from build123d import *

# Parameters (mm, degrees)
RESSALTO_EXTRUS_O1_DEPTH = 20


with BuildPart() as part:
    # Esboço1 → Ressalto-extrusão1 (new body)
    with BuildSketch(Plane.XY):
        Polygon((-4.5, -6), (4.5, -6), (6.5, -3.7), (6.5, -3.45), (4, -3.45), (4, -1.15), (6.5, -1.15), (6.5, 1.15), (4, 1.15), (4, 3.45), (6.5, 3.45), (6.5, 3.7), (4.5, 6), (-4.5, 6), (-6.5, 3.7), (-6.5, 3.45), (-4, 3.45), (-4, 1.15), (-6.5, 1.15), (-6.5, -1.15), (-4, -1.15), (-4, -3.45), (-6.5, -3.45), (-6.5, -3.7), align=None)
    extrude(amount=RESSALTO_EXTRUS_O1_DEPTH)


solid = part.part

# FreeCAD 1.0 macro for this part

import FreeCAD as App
import Part
import Sketcher

V = App.Vector


def add_polygon(sketch, points):
    """Adds a closed chain of lines whose ends are joined by coincident constraints."""
    first, n = sketch.GeometryCount, len(points)
    for a, b in zip(points, points[1:] + points[:1]):
        sketch.addGeometry(Part.LineSegment(App.Vector(*a, 0), App.Vector(*b, 0)), False)
    for i in range(n):
        sketch.addConstraint(Sketcher.Constraint("Coincident", first + i, 2, first + (i + 1) % n, 1))

doc = App.newDocument("Part")
params = doc.addObject("Spreadsheet::Sheet", "Params")
for row, (alias, value) in enumerate([
    ("sketch1_width", "9 mm"),
    ("sketch1_width2", "2.5 mm"),
    ("sketch1_height", "2.3 mm"),
    ("sketch1_height2", "0.25 mm"),
    ("pad1_length", "20 mm"),
], start=1):
    params.set(f"A{row}", alias)
    params.set(f"B{row}", "=" + value)
    params.setAlias(f"B{row}", alias)

body = doc.addObject("PartDesign::Body", "Body")

sketch1 = doc.addObject("Sketcher::SketchObject", "Sketch")
body.addObject(sketch1)
sketch1.AttachmentSupport = (doc.XY_Plane, [""])
sketch1.MapMode = "FlatFace"
add_polygon(sketch1, [(-4.5, -6), (4.5, -6), (6.5, -3.7), (6.5, -3.45), (4, -3.45), (4, -1.15), (6.5, -1.15), (6.5, 1.15), (4, 1.15), (4, 3.45), (6.5, 3.45), (6.5, 3.7), (4.5, 6), (-4.5, 6), (-6.5, 3.7), (-6.5, 3.45), (-4, 3.45), (-4, 1.15), (-6.5, 1.15), (-6.5, -1.15), (-4, -1.15), (-4, -3.45), (-6.5, -3.45), (-6.5, -3.7)])
sketch1.addConstraint([
    Sketcher.Constraint("Horizontal", 0),
    Sketcher.Constraint("Vertical", 2),
    Sketcher.Constraint("Horizontal", 3),
    Sketcher.Constraint("Vertical", 4),
    Sketcher.Constraint("Horizontal", 5),
    Sketcher.Constraint("Vertical", 6),
    Sketcher.Constraint("Horizontal", 7),
    Sketcher.Constraint("Vertical", 8),
    Sketcher.Constraint("Horizontal", 9),
    Sketcher.Constraint("Vertical", 10),
    Sketcher.Constraint("Horizontal", 12),
    Sketcher.Constraint("Vertical", 14),
    Sketcher.Constraint("Horizontal", 15),
    Sketcher.Constraint("Vertical", 16),
    Sketcher.Constraint("Horizontal", 17),
    Sketcher.Constraint("Vertical", 18),
    Sketcher.Constraint("Horizontal", 19),
    Sketcher.Constraint("Vertical", 20),
    Sketcher.Constraint("Horizontal", 21),
    Sketcher.Constraint("Vertical", 22),
    Sketcher.Constraint("Symmetric", 0, 2, 12, 2, -1, 1),
    Sketcher.Constraint("Symmetric", 1, 2, 13, 2, -1, 1),
    Sketcher.Constraint("Symmetric", 3, 2, 15, 2, -1, 1),
    Sketcher.Constraint("Symmetric", 5, 2, 17, 2, -1, 1),
    Sketcher.Constraint("Symmetric", 7, 2, 19, 2, -1, 1),
    Sketcher.Constraint("Symmetric", 9, 2, 21, 2, -1, 1),
    Sketcher.Constraint("Symmetric", 10, 2, 13, 2, -2),
    Sketcher.Constraint("Symmetric", 8, 2, 15, 2, -2),
    Sketcher.Constraint("Parallel", 11, 23),
    Sketcher.Constraint("Horizontal", 7, 2, 16, 2),
    Sketcher.Constraint("Horizontal", 1, 2, 22, 2),
    Sketcher.Constraint("Vertical", 2, 2, 5, 2),
    Sketcher.Constraint("Vertical", 0, 2, 11, 2),
    Sketcher.Constraint("Equal", 4, 6),
    Sketcher.Constraint("DistanceX", 0, 1, 0, 2, 9.0),
    Sketcher.Constraint("DistanceX", 3, 2, 3, 1, 2.5),
    Sketcher.Constraint("DistanceY", 4, 1, 4, 2, 2.3),
    Sketcher.Constraint("DistanceY", 0, 2, -1, 1, 6.0),
    Sketcher.Constraint("DistanceX", -1, 1, 3, 2, 4.0),
    Sketcher.Constraint("DistanceY", 2, 1, 2, 2, 0.25),
])
sketch1.setExpression("Constraints[58]", "Params.sketch1_width")
sketch1.setExpression("Constraints[59]", "Params.sketch1_width2")
sketch1.setExpression("Constraints[60]", "Params.sketch1_height")
sketch1.setExpression("Constraints[63]", "Params.sketch1_height2")
pad1 = doc.addObject("PartDesign::Pad", "Pad")
body.addObject(pad1)
pad1.Profile = sketch1
pad1.setExpression("Length", "Params.pad1_length")

doc.recompute()
